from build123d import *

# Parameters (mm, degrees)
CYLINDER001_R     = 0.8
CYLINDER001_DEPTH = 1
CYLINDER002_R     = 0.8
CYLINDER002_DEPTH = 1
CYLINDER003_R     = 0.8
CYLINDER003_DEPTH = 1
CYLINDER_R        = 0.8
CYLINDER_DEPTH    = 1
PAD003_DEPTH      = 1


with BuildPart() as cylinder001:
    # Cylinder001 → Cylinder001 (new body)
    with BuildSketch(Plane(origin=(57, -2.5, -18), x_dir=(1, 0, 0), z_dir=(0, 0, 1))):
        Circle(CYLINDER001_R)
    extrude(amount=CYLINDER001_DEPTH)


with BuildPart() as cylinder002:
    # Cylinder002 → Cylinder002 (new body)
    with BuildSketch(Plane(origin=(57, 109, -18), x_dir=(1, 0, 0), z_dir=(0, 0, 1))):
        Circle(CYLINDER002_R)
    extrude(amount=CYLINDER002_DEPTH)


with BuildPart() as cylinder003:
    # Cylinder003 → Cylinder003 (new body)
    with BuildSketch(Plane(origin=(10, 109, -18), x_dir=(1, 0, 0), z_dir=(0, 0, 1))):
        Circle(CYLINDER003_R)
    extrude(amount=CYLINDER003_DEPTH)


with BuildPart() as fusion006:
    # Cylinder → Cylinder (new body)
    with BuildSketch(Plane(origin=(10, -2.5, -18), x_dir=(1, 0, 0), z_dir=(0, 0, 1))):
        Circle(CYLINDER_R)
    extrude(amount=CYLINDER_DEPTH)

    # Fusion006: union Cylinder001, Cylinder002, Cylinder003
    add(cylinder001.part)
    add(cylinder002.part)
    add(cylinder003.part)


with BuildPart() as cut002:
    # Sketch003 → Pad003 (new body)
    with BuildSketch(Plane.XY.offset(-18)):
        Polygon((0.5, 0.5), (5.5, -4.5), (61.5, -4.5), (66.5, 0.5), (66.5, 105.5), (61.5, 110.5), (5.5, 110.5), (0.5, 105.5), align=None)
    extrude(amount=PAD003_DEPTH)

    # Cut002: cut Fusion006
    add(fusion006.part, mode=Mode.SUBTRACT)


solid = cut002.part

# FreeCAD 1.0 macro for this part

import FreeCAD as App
import Part
import Sketcher
from FreeCAD import Vector


def add_polygon(sketch, points):
    """Adds a closed chain of lines whose ends are joined by coincident constraints."""
    first, n = sketch.GeometryCount, len(points)
    for a, b in zip(points, points[1:] + points[:1]):
        sketch.addGeometry(Part.LineSegment(App.Vector(*a, 0), App.Vector(*b, 0)), False)
    for i in range(n):
        sketch.addConstraint(Sketcher.Constraint("Coincident", first + i, 2, first + (i + 1) % n, 1))

doc = App.newDocument("Part")
params = doc.addObject("Spreadsheet::Sheet", "Params")
for row, (alias, value) in enumerate([
    ("sketch1_diameter", "1.6 mm"),
    ("pad1_length", "1 mm"),
    ("sketch2_diameter", "1.6 mm"),
    ("pad2_length", "1 mm"),
    ("sketch3_diameter", "1.6 mm"),
    ("pad3_length", "1 mm"),
    ("sketch4_diameter", "1.6 mm"),
    ("pad4_length", "1 mm"),
    ("sketch5_width", "56 mm"),
    ("sketch5_height", "105 mm"),
    ("pad5_length", "1 mm"),
], start=1):
    params.set(f"A{row}", alias)
    params.set(f"B{row}", "=" + value)
    params.setAlias(f"B{row}", alias)

body = doc.addObject("PartDesign::Body", "Body")

sketch1 = body.newObject("Sketcher::SketchObject", "Sketch")
sketch1.AttachmentSupport = (doc.getObject("XY_Plane"), [""])
sketch1.MapMode = "FlatFace"
sketch1.AttachmentOffset = App.Placement(Vector(0, 0, -18), App.Rotation())
sketch1.addGeometry(Part.Circle(Vector(57, -2.5, 0), Vector(0, 0, 1), 0.8), False)
sketch1.addConstraint(Sketcher.Constraint("Diameter", 0, 1.6))
sketch1.addConstraint(Sketcher.Constraint("DistanceX", -1, 1, 0, 3, 57.0))
sketch1.addConstraint(Sketcher.Constraint("DistanceY", 0, 3, -1, 1, 2.5))
sketch1.setExpression("Constraints[0]", "Params.sketch1_diameter")
pad1 = body.newObject("PartDesign::Pad", "Pad")
pad1.Profile = sketch1
pad1.setExpression("Length", "Params.pad1_length")
body2 = doc.addObject("PartDesign::Body", "Body001")

sketch2 = body2.newObject("Sketcher::SketchObject", "Sketch001")
sketch2.AttachmentSupport = (doc.getObject("XY_Plane001"), [""])
sketch2.MapMode = "FlatFace"
sketch2.AttachmentOffset = App.Placement(Vector(0, 0, -18), App.Rotation())
sketch2.addGeometry(Part.Circle(Vector(57, 109, 0), Vector(0, 0, 1), 0.8), False)
sketch2.addConstraint(Sketcher.Constraint("Diameter", 0, 1.6))
sketch2.addConstraint(Sketcher.Constraint("DistanceX", -1, 1, 0, 3, 57.0))
sketch2.addConstraint(Sketcher.Constraint("DistanceY", -1, 1, 0, 3, 109.0))
sketch2.setExpression("Constraints[0]", "Params.sketch2_diameter")
pad2 = body2.newObject("PartDesign::Pad", "Pad001")
pad2.Profile = sketch2
pad2.setExpression("Length", "Params.pad2_length")
body3 = doc.addObject("PartDesign::Body", "Body002")

sketch3 = body3.newObject("Sketcher::SketchObject", "Sketch002")
sketch3.AttachmentSupport = (doc.getObject("XY_Plane002"), [""])
sketch3.MapMode = "FlatFace"
sketch3.AttachmentOffset = App.Placement(Vector(0, 0, -18), App.Rotation())
sketch3.addGeometry(Part.Circle(Vector(10, 109, 0), Vector(0, 0, 1), 0.8), False)
sketch3.addConstraint(Sketcher.Constraint("Diameter", 0, 1.6))
sketch3.addConstraint(Sketcher.Constraint("DistanceX", -1, 1, 0, 3, 10.0))
sketch3.addConstraint(Sketcher.Constraint("DistanceY", -1, 1, 0, 3, 109.0))
sketch3.setExpression("Constraints[0]", "Params.sketch3_diameter")
pad3 = body3.newObject("PartDesign::Pad", "Pad002")
pad3.Profile = sketch3
pad3.setExpression("Length", "Params.pad3_length")
body4 = doc.addObject("PartDesign::Body", "Body003")
body4.AllowCompound = True

sketch4 = body4.newObject("Sketcher::SketchObject", "Sketch003")
sketch4.AttachmentSupport = (doc.getObject("XY_Plane003"), [""])
sketch4.MapMode = "FlatFace"
sketch4.AttachmentOffset = App.Placement(Vector(0, 0, -18), App.Rotation())
sketch4.addGeometry(Part.Circle(Vector(10, -2.5, 0), Vector(0, 0, 1), 0.8), False)
sketch4.addConstraint(Sketcher.Constraint("Diameter", 0, 1.6))
sketch4.addConstraint(Sketcher.Constraint("DistanceX", -1, 1, 0, 3, 10.0))
sketch4.addConstraint(Sketcher.Constraint("DistanceY", 0, 3, -1, 1, 2.5))
sketch4.setExpression("Constraints[0]", "Params.sketch4_diameter")
pad4 = body4.newObject("PartDesign::Pad", "Pad003")
pad4.Profile = sketch4
pad4.setExpression("Length", "Params.pad4_length")
doc.recompute()

boolean = body4.newObject("PartDesign::Boolean", "Boolean")
boolean.Type = "Fuse"
boolean.addObjects([body])
doc.recompute()

boolean2 = body4.newObject("PartDesign::Boolean", "Boolean001")
boolean2.Type = "Fuse"
boolean2.addObjects([body2])
doc.recompute()

boolean3 = body4.newObject("PartDesign::Boolean", "Boolean002")
boolean3.Type = "Fuse"
boolean3.addObjects([body3])
body5 = doc.addObject("PartDesign::Body", "Body004")

sketch5 = body5.newObject("Sketcher::SketchObject", "Sketch004")
sketch5.AttachmentSupport = (doc.getObject("XY_Plane004"), [""])
sketch5.MapMode = "FlatFace"
sketch5.AttachmentOffset = App.Placement(Vector(0, 0, -18), App.Rotation())
add_polygon(sketch5, [(0, 0), (6, -4), (62, -4), (66, 0), (66, 106), (62, 110), (6, 110), (0, 106)])
sketch5.addConstraint(Sketcher.Constraint("Horizontal", 1))
sketch5.addConstraint(Sketcher.Constraint("Vertical", 3))
sketch5.addConstraint(Sketcher.Constraint("Horizontal", 5))
sketch5.addConstraint(Sketcher.Constraint("Vertical", 7))
sketch5.addConstraint(Sketcher.Constraint("Perpendicular", 0, 2))
sketch5.addConstraint(Sketcher.Constraint("Perpendicular", 2, 4))
sketch5.addConstraint(Sketcher.Constraint("Perpendicular", 4, 6))
sketch5.addConstraint(Sketcher.Constraint("Horizontal", 3, 2, 6, 2))
sketch5.addConstraint(Sketcher.Constraint("Horizontal", 2, 2, 7, 2))
sketch5.addConstraint(Sketcher.Constraint("Vertical", 1, 2, 4, 2))
sketch5.addConstraint(Sketcher.Constraint("Vertical", 0, 2, 5, 2))
sketch5.addConstraint(Sketcher.Constraint("DistanceX", 1, 1, 1, 2, 56.0))
sketch5.addConstraint(Sketcher.Constraint("DistanceY", 3, 1, 3, 2, 105.0))
sketch5.addConstraint(Sketcher.Constraint("DistanceX", 1, 2, 2, 2, 5.0))
sketch5.addConstraint(Sketcher.Constraint("DistanceX", -1, 1, 0, 2, 5.5))
sketch5.addConstraint(Sketcher.Constraint("DistanceY", 0, 2, -1, 1, 4.5))
sketch5.setExpression("Constraints[19]", "Params.sketch5_width")
sketch5.setExpression("Constraints[20]", "Params.sketch5_height")
pad5 = body5.newObject("PartDesign::Pad", "Pad004")
pad5.Profile = sketch5
pad5.setExpression("Length", "Params.pad5_length")
doc.recompute()

boolean4 = body5.newObject("PartDesign::Boolean", "Boolean003")
boolean4.Type = "Cut"
boolean4.addObjects([body4])

doc.recompute()
